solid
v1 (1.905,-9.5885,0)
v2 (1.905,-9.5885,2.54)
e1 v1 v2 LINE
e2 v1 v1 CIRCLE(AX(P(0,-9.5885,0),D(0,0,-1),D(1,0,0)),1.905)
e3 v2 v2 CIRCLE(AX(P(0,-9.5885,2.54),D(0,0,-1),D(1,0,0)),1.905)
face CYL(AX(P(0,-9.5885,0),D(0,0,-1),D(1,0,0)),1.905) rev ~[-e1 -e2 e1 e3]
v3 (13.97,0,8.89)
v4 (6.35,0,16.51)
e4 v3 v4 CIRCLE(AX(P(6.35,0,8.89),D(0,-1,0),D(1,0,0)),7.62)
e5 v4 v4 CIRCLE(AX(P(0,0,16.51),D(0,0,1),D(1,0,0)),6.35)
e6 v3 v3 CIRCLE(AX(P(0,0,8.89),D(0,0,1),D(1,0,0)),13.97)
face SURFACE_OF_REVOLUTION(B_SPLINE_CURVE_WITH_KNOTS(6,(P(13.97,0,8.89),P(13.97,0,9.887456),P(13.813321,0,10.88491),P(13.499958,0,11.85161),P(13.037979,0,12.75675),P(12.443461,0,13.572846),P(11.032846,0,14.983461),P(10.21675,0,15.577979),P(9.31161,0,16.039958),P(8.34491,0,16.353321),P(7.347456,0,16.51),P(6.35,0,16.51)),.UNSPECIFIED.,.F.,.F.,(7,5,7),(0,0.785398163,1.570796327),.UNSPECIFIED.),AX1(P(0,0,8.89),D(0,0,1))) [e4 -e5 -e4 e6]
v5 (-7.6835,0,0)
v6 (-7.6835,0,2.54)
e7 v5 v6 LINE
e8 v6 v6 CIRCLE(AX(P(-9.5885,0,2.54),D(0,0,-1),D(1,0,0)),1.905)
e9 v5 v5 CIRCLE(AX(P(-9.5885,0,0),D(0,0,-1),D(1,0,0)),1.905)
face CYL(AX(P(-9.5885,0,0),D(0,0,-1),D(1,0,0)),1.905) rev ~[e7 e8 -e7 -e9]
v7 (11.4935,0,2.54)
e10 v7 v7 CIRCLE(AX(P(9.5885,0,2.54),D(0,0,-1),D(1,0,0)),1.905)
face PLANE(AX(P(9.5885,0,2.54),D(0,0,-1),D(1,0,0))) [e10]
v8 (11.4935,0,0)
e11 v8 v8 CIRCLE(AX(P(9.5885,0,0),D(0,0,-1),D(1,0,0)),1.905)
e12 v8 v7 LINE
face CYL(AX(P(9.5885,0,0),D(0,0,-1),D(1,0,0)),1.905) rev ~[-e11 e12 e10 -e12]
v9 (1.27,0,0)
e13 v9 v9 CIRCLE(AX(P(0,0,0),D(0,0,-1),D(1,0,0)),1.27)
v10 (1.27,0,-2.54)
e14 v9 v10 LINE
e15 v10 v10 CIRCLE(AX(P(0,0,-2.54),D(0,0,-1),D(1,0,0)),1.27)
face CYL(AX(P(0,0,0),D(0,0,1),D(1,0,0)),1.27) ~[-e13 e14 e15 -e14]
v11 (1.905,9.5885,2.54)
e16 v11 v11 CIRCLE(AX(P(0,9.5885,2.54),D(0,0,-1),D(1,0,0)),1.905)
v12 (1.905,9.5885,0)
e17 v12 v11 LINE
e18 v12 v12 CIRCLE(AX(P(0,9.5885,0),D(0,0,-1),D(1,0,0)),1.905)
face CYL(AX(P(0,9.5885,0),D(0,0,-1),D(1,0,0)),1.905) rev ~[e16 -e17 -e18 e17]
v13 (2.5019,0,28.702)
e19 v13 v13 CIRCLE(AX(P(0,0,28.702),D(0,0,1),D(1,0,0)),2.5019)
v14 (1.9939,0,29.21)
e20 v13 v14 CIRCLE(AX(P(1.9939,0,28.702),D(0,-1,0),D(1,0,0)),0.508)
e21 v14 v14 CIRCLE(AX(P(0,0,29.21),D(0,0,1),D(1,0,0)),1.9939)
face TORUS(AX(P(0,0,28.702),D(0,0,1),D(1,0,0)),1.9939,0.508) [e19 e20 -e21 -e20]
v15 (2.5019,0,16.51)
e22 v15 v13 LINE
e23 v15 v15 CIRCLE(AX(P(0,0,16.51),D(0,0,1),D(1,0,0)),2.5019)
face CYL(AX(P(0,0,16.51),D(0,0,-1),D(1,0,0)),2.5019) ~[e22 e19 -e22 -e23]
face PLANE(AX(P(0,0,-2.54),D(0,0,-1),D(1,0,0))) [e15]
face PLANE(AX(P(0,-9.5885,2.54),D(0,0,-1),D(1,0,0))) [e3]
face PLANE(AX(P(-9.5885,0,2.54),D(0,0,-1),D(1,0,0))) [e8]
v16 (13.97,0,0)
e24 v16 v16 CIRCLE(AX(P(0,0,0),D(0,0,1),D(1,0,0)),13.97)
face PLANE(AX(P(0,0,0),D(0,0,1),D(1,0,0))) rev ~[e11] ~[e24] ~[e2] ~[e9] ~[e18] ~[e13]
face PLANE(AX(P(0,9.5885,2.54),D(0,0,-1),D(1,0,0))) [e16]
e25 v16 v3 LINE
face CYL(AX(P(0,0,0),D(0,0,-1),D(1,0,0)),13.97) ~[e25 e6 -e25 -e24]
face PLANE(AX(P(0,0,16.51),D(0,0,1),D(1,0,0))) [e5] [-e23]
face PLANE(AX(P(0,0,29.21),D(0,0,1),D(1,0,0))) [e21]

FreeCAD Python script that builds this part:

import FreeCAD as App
import Part
import Sketcher

V = App.Vector
Q = App.Units.Quantity


def edges_at(feature, points):
    """Names of the edges that pass closest to the given points."""
    edges = feature.Shape.Edges
    near = lambda p: min(range(len(edges)), key=lambda i: edges[i].distToShape(Part.Vertex(*p))[0])
    return sorted({f"Edge{near(p) + 1}" for p in points})

doc = App.newDocument("Part")
body = doc.addObject("PartDesign::Body", "Body")

# Sketch on XY plane
sketch1 = body.newObject("Sketcher::SketchObject", "Sketch")
sketch1.AttachmentSupport = (doc.getObject("XY_Plane"), [""])
sketch1.MapMode = "FlatFace"
sketch1.addGeometry(Part.Circle(V(0, 0, 0), V(0, 0, 1), 14), False)
sketch1.addConstraint(Sketcher.Constraint("Coincident", 0, 3, -1, 1))
sketch1.addConstraint(Sketcher.Constraint("Diameter", 0, Q("1.1 in")))
pad1 = body.newObject("PartDesign::Pad", "Pad")
pad1.Profile = sketch1
pad1.Length = Q("0.65 in")
doc.recompute()

fillet = body.newObject("PartDesign::Fillet", "Fillet")
fillet.Base = (pad1, edges_at(pad1, [(-13.97, 0, 16.51)]))
fillet.Radius = Q("0.3 in")

# Sketch on XY plane
sketch2 = body.newObject("Sketcher::SketchObject", "Sketch001")
sketch2.AttachmentSupport = (doc.getObject("XY_Plane"), [""])
sketch2.MapMode = "FlatFace"
sketch2.addGeometry(Part.Circle(V(0, 0, 0), V(0, 0, 1), 1.3), False)
sketch2.addConstraint(Sketcher.Constraint("Coincident", 0, 3, -1, 1))
sketch2.addConstraint(Sketcher.Constraint("Diameter", 0, Q("0.1 in")))
pad2 = body.newObject("PartDesign::Pad", "Pad001")
pad2.Profile = sketch2
pad2.Length = Q("0.1 in")
pad2.Reversed = True

# Sketch on XY plane
sketch3 = body.newObject("Sketcher::SketchObject", "Sketch002")
sketch3.AttachmentSupport = (doc.getObject("XY_Plane"), [""])
sketch3.MapMode = "FlatFace"
sketch3.addGeometry(Part.Circle(V(-9.6, 0, 0), V(0, 0, 1), 1.9), False)
sketch3.addGeometry(Part.Circle(V(0, 9.6, 0), V(0, 0, 1), 1.9), False)
sketch3.addGeometry(Part.Circle(V(9.6, 0, 0), V(0, 0, 1), 1.9), False)
sketch3.addGeometry(Part.Circle(V(0, -9.6, 0), V(0, 0, 1), 1.9), False)
sketch3.addConstraint(Sketcher.Constraint("Equal", 0, 1))
sketch3.addConstraint(Sketcher.Constraint("Equal", 1, 2))
sketch3.addConstraint(Sketcher.Constraint("Equal", 2, 3))
sketch3.addConstraint(Sketcher.Constraint("Symmetric", 0, 3, 2, 3, -1, 1))
sketch3.addConstraint(Sketcher.Constraint("Symmetric", 1, 3, 3, 3, -1, 1))
sketch3.addConstraint(Sketcher.Constraint("PointOnObject", 0, 3, -1))
sketch3.addConstraint(Sketcher.Constraint("PointOnObject", 1, 3, -2))
sketch3.addConstraint(Sketcher.Constraint("Diameter", 0, Q("0.15 in")))
sketch3.addConstraint(Sketcher.Constraint("DistanceX", 0, 3, 2, 3, Q("0.755 in")))
sketch3.addConstraint(Sketcher.Constraint("DistanceY", 3, 3, 1, 3, Q("0.755 in")))
pocket1 = body.newObject("PartDesign::Pocket", "Pocket")
pocket1.Profile = sketch3
pocket1.Length = Q("0.1 in")
pocket1.Reversed = True

# Sketch on XY plane
sketch4 = body.newObject("Sketcher::SketchObject", "Sketch003")
sketch4.AttachmentSupport = (doc.getObject("XY_Plane"), [""])
sketch4.MapMode = "FlatFace"
sketch4.AttachmentOffset = App.Placement(V(0, 0, 0.65 * 25.4), App.Rotation())
sketch4.addGeometry(Part.Circle(V(0, 0, 0), V(0, 0, 1), 2.5), False)
sketch4.addConstraint(Sketcher.Constraint("Coincident", 0, 3, -1, 1))
sketch4.addConstraint(Sketcher.Constraint("Diameter", 0, Q("0.197 in")))
pad3 = body.newObject("PartDesign::Pad", "Pad002")
pad3.Profile = sketch4
pad3.Length = Q("0.5 in")
doc.recompute()

fillet2 = body.newObject("PartDesign::Fillet", "Fillet001")
fillet2.Base = (pad3, edges_at(pad3, [(-2.502, 0, 29.21)]))
fillet2.Radius = Q("0.02 in")

doc.recompute()
